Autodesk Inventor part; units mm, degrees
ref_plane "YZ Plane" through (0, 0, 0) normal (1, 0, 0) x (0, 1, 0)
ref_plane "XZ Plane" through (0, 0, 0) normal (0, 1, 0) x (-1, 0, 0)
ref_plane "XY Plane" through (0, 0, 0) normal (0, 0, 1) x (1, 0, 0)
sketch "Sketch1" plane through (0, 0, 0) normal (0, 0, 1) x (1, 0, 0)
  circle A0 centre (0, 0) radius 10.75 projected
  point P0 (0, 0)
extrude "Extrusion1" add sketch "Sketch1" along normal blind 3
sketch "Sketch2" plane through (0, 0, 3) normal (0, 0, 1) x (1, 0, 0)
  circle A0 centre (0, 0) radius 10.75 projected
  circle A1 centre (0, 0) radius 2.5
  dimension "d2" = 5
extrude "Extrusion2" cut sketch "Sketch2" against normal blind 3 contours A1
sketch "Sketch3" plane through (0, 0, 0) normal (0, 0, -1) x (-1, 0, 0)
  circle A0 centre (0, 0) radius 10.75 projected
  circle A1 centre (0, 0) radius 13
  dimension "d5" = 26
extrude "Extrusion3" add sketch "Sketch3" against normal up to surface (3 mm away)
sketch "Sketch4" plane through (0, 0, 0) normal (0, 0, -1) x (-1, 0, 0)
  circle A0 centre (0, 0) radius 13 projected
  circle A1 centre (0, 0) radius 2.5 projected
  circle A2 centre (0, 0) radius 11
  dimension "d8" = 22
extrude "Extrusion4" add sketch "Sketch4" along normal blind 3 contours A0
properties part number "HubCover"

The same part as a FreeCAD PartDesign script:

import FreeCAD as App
import Part
import Sketcher

doc = App.newDocument("Part")
body = doc.addObject("PartDesign::Body", "Body")

# Sketch on XY plane
sketch1 = doc.addObject("Sketcher::SketchObject", "Sketch")
body.addObject(sketch1)
sketch1.AttachmentSupport = (doc.XY_Plane, [""])
sketch1.MapMode = "FlatFace"
sketch1.addGeometry(Part.Circle(App.Vector(0, 0, 0), App.Vector(0, 0, 1), 11), False)
sketch1.addConstraint(Sketcher.Constraint("Coincident", 0, 3, -1, 1))
sketch1.addConstraint(Sketcher.Constraint("Diameter", 0, 21.5))
pad1 = doc.addObject("PartDesign::Pad", "Pad")
body.addObject(pad1)
pad1.Profile = sketch1
pad1.Length = 3

# Sketch on XY plane
sketch2 = doc.addObject("Sketcher::SketchObject", "Sketch001")
body.addObject(sketch2)
sketch2.AttachmentSupport = (doc.XY_Plane, [""])
sketch2.MapMode = "FlatFace"
sketch2.AttachmentOffset = App.Placement(App.Vector(0, 0, 3), App.Rotation())
sketch2.addGeometry(Part.Circle(App.Vector(0, 0, 0), App.Vector(0, 0, 1), 2.5), False)
sketch2.addConstraint(Sketcher.Constraint("Coincident", 0, 3, -1, 1))
sketch2.addConstraint(Sketcher.Constraint("Diameter", 0, 5.0))
pocket1 = doc.addObject("PartDesign::Pocket", "Pocket")
body.addObject(pocket1)
pocket1.Profile = sketch2
pocket1.Length = 3

# Sketch on XY plane
sketch3 = doc.addObject("Sketcher::SketchObject", "Sketch002")
body.addObject(sketch3)
sketch3.AttachmentSupport = (doc.XY_Plane, [""])
sketch3.MapMode = "FlatFace"
sketch3.addGeometry(Part.Circle(App.Vector(0, 0, 0), App.Vector(0, 0, 1), 13), False)
sketch3.addGeometry(Part.Circle(App.Vector(0, 0, 0), App.Vector(0, 0, 1), 11), False)
sketch3.addConstraint(Sketcher.Constraint("Coincident", 0, 3, -1, 1))
sketch3.addConstraint(Sketcher.Constraint("Coincident", 1, 3, -1, 1))
sketch3.addConstraint(Sketcher.Constraint("Diameter", 0, 26.0))
sketch3.addConstraint(Sketcher.Constraint("Diameter", 1, 21.5))
pad2 = doc.addObject("PartDesign::Pad", "Pad001")
body.addObject(pad2)
pad2.Profile = sketch3
pad2.Length = 3

# Sketch on XY plane
sketch4 = doc.addObject("Sketcher::SketchObject", "Sketch003")
body.addObject(sketch4)
sketch4.AttachmentSupport = (doc.XY_Plane, [""])
sketch4.MapMode = "FlatFace"
sketch4.addGeometry(Part.Circle(App.Vector(0, 0, 0), App.Vector(0, 0, 1), 13), False)
sketch4.addGeometry(Part.Circle(App.Vector(0, 0, 0), App.Vector(0, 0, 1), 11), False)
sketch4.addConstraint(Sketcher.Constraint("Coincident", 0, 3, -1, 1))
sketch4.addConstraint(Sketcher.Constraint("Coincident", 1, 3, -1, 1))
sketch4.addConstraint(Sketcher.Constraint("Diameter", 1, 22.0))
sketch4.addConstraint(Sketcher.Constraint("Diameter", 0, 26.0))
pad3 = doc.addObject("PartDesign::Pad", "Pad002")
body.addObject(pad3)
pad3.Profile = sketch4
pad3.Length = 3
pad3.Reversed = True

doc.recompute()
